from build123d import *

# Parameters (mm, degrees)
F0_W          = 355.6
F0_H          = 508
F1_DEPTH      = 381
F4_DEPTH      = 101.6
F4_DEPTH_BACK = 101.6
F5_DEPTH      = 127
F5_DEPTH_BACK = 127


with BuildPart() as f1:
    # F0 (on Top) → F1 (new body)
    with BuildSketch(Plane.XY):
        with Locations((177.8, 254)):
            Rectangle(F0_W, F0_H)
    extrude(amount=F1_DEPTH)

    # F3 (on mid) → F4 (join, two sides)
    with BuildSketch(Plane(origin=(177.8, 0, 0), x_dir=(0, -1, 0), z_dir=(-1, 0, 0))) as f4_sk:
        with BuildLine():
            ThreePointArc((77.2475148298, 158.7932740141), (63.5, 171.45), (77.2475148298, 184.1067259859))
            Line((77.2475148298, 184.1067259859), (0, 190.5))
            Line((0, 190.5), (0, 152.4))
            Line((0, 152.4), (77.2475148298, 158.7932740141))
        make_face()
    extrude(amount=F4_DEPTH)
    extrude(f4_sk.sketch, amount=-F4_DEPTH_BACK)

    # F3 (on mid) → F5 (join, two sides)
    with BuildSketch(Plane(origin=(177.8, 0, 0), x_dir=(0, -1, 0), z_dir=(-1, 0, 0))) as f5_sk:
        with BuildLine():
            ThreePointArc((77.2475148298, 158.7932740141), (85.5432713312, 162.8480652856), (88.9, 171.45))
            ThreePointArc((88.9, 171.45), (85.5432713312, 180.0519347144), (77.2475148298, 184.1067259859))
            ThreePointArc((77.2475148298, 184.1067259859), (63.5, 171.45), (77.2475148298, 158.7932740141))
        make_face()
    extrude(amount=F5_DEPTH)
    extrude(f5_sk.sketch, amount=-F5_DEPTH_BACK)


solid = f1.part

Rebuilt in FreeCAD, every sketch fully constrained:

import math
import FreeCAD as App
import Part
import Sketcher
Q = App.Units.Quantity

doc = App.newDocument("Part")
body = doc.addObject("PartDesign::Body", "Body")

sketch1 = body.newObject("Sketcher::SketchObject", "Sketch")
sketch1.AttachmentSupport = (doc.getObject("XY_Plane"), [""])
sketch1.MapMode = "FlatFace"
sketch1.addGeometry([
    Part.LineSegment(App.Vector(0, 508, 0), App.Vector(0, 0, 0)),
    Part.LineSegment(App.Vector(0, 0, 0), App.Vector(355.6, 0, 0)),
    Part.LineSegment(App.Vector(355.6, 0, 0), App.Vector(355.6, 508, 0)),
    Part.LineSegment(App.Vector(355.6, 508, 0), App.Vector(0, 508, 0)),
], False)
sketch1.addConstraint([
    Sketcher.Constraint("Coincident", 0, 2, 1, 1),
    Sketcher.Constraint("Coincident", 1, 2, 2, 1),
    Sketcher.Constraint("Coincident", 2, 2, 3, 1),
    Sketcher.Constraint("Coincident", 3, 2, 0, 1),
    Sketcher.Constraint("Vertical", 0),
    Sketcher.Constraint("Horizontal", 1),
    Sketcher.Constraint("Vertical", 2),
    Sketcher.Constraint("Horizontal", 3),
    Sketcher.Constraint("Coincident", 0, 2, -1, 1),
    Sketcher.Constraint("DistanceX", 1, 1, 1, 2, Q("14 in")),
    Sketcher.Constraint("DistanceY", 0, 2, 0, 1, Q("20 in")),
])
pad1 = body.newObject("PartDesign::Pad", "Pad")
pad1.Profile = sketch1
pad1.Length = Q("15 in")

sketch2 = body.newObject("Sketcher::SketchObject", "Sketch001")
sketch2.AttachmentSupport = (doc.getObject("YZ_Plane"), [""])
sketch2.MapMode = "FlatFace"
sketch2.AttachmentOffset = App.Placement(App.Vector(0, 0, 7 * 25.4), App.Rotation())
sketch2.addGeometry([
    Part.ArcOfCircle(Part.Circle(App.Vector(-76.2, 171.45, 0), App.Vector(0, 0, 1), 12.7), math.radians(-94.731216), math.radians(94.731216)),
    Part.LineSegment(App.Vector(-77.247515, 184.106726, 0), App.Vector(0, 190.5, 0)),
    Part.LineSegment(App.Vector(0, 190.5, 0), App.Vector(0, 152.4, 0)),
    Part.LineSegment(App.Vector(0, 152.4, 0), App.Vector(-77.247515, 158.793274, 0)),
], False)
sketch2.addConstraint([
    Sketcher.Constraint("Tangent", 0, 2, 1, 1),
    Sketcher.Constraint("Coincident", 1, 2, 2, 1),
    Sketcher.Constraint("Coincident", 2, 2, 3, 1),
    Sketcher.Constraint("Tangent", 3, 2, 0, 1),
    Sketcher.Constraint("Vertical", 2),
    Sketcher.Constraint("PointOnObject", 1, 2, -2),
    Sketcher.Constraint("Vertical", 0, 2, 3, 2),
    Sketcher.Constraint("Radius", 0, Q("0.5 in")),
    Sketcher.Constraint("DistanceY", 2, 2, 2, 1, Q("1.5 in")),
    Sketcher.Constraint("DistanceX", 0, 3, -1, 1, Q("3 in")),
    Sketcher.Constraint("DistanceY", -1, 1, 2, 2, Q("6 in")),
])
pad2 = body.newObject("PartDesign::Pad", "Pad001")
pad2.Profile = sketch2
pad2.Type = "TwoLengths"
pad2.Length = Q("4 in")
pad2.Length2 = Q("4 in")
pad2.Reversed = True

sketch3 = body.newObject("Sketcher::SketchObject", "Sketch002")
sketch3.AttachmentSupport = (doc.getObject("YZ_Plane"), [""])
sketch3.MapMode = "FlatFace"
sketch3.AttachmentOffset = App.Placement(App.Vector(0, 0, 7 * 25.4), App.Rotation())
sketch3.addGeometry([
    Part.ArcOfCircle(Part.Circle(App.Vector(-76.2, 171.45, 0), App.Vector(0, 0, 1), 12.7), math.radians(180), math.radians(265.268784)),
    Part.ArcOfCircle(Part.Circle(App.Vector(-76.2, 171.45, 0), App.Vector(0, 0, 1), 12.7), math.radians(94.731216), math.radians(180)),
    Part.ArcOfCircle(Part.Circle(App.Vector(-76.2, 171.45, 0), App.Vector(0, 0, 1), 12.7), math.radians(-94.731216), math.radians(94.731216)),
], False)
sketch3.addConstraint([
    Sketcher.Constraint("Tangent", 0, 1, 1, 2),
    Sketcher.Constraint("Tangent", 1, 1, 2, 2),
    Sketcher.Constraint("Tangent", 2, 1, 0, 2),
    Sketcher.Constraint("Horizontal", 2, 3, 0, 1),
    Sketcher.Constraint("Vertical", 1, 1, 2, 1),
    Sketcher.Constraint("Radius", 0, Q("0.5 in")),
    Sketcher.Constraint("DistanceX", 0, 3, -1, 1, Q("3 in")),
    Sketcher.Constraint("DistanceY", -1, 1, 0, 3, Q("6.75 in")),
    Sketcher.Constraint("DistanceY", 2, 1, 1, 1, 25.313452),
])
pad3 = body.newObject("PartDesign::Pad", "Pad002")
pad3.Profile = sketch3
pad3.Type = "TwoLengths"
pad3.Length = Q("5 in")
pad3.Length2 = Q("5 in")
pad3.Reversed = True

doc.recompute()
